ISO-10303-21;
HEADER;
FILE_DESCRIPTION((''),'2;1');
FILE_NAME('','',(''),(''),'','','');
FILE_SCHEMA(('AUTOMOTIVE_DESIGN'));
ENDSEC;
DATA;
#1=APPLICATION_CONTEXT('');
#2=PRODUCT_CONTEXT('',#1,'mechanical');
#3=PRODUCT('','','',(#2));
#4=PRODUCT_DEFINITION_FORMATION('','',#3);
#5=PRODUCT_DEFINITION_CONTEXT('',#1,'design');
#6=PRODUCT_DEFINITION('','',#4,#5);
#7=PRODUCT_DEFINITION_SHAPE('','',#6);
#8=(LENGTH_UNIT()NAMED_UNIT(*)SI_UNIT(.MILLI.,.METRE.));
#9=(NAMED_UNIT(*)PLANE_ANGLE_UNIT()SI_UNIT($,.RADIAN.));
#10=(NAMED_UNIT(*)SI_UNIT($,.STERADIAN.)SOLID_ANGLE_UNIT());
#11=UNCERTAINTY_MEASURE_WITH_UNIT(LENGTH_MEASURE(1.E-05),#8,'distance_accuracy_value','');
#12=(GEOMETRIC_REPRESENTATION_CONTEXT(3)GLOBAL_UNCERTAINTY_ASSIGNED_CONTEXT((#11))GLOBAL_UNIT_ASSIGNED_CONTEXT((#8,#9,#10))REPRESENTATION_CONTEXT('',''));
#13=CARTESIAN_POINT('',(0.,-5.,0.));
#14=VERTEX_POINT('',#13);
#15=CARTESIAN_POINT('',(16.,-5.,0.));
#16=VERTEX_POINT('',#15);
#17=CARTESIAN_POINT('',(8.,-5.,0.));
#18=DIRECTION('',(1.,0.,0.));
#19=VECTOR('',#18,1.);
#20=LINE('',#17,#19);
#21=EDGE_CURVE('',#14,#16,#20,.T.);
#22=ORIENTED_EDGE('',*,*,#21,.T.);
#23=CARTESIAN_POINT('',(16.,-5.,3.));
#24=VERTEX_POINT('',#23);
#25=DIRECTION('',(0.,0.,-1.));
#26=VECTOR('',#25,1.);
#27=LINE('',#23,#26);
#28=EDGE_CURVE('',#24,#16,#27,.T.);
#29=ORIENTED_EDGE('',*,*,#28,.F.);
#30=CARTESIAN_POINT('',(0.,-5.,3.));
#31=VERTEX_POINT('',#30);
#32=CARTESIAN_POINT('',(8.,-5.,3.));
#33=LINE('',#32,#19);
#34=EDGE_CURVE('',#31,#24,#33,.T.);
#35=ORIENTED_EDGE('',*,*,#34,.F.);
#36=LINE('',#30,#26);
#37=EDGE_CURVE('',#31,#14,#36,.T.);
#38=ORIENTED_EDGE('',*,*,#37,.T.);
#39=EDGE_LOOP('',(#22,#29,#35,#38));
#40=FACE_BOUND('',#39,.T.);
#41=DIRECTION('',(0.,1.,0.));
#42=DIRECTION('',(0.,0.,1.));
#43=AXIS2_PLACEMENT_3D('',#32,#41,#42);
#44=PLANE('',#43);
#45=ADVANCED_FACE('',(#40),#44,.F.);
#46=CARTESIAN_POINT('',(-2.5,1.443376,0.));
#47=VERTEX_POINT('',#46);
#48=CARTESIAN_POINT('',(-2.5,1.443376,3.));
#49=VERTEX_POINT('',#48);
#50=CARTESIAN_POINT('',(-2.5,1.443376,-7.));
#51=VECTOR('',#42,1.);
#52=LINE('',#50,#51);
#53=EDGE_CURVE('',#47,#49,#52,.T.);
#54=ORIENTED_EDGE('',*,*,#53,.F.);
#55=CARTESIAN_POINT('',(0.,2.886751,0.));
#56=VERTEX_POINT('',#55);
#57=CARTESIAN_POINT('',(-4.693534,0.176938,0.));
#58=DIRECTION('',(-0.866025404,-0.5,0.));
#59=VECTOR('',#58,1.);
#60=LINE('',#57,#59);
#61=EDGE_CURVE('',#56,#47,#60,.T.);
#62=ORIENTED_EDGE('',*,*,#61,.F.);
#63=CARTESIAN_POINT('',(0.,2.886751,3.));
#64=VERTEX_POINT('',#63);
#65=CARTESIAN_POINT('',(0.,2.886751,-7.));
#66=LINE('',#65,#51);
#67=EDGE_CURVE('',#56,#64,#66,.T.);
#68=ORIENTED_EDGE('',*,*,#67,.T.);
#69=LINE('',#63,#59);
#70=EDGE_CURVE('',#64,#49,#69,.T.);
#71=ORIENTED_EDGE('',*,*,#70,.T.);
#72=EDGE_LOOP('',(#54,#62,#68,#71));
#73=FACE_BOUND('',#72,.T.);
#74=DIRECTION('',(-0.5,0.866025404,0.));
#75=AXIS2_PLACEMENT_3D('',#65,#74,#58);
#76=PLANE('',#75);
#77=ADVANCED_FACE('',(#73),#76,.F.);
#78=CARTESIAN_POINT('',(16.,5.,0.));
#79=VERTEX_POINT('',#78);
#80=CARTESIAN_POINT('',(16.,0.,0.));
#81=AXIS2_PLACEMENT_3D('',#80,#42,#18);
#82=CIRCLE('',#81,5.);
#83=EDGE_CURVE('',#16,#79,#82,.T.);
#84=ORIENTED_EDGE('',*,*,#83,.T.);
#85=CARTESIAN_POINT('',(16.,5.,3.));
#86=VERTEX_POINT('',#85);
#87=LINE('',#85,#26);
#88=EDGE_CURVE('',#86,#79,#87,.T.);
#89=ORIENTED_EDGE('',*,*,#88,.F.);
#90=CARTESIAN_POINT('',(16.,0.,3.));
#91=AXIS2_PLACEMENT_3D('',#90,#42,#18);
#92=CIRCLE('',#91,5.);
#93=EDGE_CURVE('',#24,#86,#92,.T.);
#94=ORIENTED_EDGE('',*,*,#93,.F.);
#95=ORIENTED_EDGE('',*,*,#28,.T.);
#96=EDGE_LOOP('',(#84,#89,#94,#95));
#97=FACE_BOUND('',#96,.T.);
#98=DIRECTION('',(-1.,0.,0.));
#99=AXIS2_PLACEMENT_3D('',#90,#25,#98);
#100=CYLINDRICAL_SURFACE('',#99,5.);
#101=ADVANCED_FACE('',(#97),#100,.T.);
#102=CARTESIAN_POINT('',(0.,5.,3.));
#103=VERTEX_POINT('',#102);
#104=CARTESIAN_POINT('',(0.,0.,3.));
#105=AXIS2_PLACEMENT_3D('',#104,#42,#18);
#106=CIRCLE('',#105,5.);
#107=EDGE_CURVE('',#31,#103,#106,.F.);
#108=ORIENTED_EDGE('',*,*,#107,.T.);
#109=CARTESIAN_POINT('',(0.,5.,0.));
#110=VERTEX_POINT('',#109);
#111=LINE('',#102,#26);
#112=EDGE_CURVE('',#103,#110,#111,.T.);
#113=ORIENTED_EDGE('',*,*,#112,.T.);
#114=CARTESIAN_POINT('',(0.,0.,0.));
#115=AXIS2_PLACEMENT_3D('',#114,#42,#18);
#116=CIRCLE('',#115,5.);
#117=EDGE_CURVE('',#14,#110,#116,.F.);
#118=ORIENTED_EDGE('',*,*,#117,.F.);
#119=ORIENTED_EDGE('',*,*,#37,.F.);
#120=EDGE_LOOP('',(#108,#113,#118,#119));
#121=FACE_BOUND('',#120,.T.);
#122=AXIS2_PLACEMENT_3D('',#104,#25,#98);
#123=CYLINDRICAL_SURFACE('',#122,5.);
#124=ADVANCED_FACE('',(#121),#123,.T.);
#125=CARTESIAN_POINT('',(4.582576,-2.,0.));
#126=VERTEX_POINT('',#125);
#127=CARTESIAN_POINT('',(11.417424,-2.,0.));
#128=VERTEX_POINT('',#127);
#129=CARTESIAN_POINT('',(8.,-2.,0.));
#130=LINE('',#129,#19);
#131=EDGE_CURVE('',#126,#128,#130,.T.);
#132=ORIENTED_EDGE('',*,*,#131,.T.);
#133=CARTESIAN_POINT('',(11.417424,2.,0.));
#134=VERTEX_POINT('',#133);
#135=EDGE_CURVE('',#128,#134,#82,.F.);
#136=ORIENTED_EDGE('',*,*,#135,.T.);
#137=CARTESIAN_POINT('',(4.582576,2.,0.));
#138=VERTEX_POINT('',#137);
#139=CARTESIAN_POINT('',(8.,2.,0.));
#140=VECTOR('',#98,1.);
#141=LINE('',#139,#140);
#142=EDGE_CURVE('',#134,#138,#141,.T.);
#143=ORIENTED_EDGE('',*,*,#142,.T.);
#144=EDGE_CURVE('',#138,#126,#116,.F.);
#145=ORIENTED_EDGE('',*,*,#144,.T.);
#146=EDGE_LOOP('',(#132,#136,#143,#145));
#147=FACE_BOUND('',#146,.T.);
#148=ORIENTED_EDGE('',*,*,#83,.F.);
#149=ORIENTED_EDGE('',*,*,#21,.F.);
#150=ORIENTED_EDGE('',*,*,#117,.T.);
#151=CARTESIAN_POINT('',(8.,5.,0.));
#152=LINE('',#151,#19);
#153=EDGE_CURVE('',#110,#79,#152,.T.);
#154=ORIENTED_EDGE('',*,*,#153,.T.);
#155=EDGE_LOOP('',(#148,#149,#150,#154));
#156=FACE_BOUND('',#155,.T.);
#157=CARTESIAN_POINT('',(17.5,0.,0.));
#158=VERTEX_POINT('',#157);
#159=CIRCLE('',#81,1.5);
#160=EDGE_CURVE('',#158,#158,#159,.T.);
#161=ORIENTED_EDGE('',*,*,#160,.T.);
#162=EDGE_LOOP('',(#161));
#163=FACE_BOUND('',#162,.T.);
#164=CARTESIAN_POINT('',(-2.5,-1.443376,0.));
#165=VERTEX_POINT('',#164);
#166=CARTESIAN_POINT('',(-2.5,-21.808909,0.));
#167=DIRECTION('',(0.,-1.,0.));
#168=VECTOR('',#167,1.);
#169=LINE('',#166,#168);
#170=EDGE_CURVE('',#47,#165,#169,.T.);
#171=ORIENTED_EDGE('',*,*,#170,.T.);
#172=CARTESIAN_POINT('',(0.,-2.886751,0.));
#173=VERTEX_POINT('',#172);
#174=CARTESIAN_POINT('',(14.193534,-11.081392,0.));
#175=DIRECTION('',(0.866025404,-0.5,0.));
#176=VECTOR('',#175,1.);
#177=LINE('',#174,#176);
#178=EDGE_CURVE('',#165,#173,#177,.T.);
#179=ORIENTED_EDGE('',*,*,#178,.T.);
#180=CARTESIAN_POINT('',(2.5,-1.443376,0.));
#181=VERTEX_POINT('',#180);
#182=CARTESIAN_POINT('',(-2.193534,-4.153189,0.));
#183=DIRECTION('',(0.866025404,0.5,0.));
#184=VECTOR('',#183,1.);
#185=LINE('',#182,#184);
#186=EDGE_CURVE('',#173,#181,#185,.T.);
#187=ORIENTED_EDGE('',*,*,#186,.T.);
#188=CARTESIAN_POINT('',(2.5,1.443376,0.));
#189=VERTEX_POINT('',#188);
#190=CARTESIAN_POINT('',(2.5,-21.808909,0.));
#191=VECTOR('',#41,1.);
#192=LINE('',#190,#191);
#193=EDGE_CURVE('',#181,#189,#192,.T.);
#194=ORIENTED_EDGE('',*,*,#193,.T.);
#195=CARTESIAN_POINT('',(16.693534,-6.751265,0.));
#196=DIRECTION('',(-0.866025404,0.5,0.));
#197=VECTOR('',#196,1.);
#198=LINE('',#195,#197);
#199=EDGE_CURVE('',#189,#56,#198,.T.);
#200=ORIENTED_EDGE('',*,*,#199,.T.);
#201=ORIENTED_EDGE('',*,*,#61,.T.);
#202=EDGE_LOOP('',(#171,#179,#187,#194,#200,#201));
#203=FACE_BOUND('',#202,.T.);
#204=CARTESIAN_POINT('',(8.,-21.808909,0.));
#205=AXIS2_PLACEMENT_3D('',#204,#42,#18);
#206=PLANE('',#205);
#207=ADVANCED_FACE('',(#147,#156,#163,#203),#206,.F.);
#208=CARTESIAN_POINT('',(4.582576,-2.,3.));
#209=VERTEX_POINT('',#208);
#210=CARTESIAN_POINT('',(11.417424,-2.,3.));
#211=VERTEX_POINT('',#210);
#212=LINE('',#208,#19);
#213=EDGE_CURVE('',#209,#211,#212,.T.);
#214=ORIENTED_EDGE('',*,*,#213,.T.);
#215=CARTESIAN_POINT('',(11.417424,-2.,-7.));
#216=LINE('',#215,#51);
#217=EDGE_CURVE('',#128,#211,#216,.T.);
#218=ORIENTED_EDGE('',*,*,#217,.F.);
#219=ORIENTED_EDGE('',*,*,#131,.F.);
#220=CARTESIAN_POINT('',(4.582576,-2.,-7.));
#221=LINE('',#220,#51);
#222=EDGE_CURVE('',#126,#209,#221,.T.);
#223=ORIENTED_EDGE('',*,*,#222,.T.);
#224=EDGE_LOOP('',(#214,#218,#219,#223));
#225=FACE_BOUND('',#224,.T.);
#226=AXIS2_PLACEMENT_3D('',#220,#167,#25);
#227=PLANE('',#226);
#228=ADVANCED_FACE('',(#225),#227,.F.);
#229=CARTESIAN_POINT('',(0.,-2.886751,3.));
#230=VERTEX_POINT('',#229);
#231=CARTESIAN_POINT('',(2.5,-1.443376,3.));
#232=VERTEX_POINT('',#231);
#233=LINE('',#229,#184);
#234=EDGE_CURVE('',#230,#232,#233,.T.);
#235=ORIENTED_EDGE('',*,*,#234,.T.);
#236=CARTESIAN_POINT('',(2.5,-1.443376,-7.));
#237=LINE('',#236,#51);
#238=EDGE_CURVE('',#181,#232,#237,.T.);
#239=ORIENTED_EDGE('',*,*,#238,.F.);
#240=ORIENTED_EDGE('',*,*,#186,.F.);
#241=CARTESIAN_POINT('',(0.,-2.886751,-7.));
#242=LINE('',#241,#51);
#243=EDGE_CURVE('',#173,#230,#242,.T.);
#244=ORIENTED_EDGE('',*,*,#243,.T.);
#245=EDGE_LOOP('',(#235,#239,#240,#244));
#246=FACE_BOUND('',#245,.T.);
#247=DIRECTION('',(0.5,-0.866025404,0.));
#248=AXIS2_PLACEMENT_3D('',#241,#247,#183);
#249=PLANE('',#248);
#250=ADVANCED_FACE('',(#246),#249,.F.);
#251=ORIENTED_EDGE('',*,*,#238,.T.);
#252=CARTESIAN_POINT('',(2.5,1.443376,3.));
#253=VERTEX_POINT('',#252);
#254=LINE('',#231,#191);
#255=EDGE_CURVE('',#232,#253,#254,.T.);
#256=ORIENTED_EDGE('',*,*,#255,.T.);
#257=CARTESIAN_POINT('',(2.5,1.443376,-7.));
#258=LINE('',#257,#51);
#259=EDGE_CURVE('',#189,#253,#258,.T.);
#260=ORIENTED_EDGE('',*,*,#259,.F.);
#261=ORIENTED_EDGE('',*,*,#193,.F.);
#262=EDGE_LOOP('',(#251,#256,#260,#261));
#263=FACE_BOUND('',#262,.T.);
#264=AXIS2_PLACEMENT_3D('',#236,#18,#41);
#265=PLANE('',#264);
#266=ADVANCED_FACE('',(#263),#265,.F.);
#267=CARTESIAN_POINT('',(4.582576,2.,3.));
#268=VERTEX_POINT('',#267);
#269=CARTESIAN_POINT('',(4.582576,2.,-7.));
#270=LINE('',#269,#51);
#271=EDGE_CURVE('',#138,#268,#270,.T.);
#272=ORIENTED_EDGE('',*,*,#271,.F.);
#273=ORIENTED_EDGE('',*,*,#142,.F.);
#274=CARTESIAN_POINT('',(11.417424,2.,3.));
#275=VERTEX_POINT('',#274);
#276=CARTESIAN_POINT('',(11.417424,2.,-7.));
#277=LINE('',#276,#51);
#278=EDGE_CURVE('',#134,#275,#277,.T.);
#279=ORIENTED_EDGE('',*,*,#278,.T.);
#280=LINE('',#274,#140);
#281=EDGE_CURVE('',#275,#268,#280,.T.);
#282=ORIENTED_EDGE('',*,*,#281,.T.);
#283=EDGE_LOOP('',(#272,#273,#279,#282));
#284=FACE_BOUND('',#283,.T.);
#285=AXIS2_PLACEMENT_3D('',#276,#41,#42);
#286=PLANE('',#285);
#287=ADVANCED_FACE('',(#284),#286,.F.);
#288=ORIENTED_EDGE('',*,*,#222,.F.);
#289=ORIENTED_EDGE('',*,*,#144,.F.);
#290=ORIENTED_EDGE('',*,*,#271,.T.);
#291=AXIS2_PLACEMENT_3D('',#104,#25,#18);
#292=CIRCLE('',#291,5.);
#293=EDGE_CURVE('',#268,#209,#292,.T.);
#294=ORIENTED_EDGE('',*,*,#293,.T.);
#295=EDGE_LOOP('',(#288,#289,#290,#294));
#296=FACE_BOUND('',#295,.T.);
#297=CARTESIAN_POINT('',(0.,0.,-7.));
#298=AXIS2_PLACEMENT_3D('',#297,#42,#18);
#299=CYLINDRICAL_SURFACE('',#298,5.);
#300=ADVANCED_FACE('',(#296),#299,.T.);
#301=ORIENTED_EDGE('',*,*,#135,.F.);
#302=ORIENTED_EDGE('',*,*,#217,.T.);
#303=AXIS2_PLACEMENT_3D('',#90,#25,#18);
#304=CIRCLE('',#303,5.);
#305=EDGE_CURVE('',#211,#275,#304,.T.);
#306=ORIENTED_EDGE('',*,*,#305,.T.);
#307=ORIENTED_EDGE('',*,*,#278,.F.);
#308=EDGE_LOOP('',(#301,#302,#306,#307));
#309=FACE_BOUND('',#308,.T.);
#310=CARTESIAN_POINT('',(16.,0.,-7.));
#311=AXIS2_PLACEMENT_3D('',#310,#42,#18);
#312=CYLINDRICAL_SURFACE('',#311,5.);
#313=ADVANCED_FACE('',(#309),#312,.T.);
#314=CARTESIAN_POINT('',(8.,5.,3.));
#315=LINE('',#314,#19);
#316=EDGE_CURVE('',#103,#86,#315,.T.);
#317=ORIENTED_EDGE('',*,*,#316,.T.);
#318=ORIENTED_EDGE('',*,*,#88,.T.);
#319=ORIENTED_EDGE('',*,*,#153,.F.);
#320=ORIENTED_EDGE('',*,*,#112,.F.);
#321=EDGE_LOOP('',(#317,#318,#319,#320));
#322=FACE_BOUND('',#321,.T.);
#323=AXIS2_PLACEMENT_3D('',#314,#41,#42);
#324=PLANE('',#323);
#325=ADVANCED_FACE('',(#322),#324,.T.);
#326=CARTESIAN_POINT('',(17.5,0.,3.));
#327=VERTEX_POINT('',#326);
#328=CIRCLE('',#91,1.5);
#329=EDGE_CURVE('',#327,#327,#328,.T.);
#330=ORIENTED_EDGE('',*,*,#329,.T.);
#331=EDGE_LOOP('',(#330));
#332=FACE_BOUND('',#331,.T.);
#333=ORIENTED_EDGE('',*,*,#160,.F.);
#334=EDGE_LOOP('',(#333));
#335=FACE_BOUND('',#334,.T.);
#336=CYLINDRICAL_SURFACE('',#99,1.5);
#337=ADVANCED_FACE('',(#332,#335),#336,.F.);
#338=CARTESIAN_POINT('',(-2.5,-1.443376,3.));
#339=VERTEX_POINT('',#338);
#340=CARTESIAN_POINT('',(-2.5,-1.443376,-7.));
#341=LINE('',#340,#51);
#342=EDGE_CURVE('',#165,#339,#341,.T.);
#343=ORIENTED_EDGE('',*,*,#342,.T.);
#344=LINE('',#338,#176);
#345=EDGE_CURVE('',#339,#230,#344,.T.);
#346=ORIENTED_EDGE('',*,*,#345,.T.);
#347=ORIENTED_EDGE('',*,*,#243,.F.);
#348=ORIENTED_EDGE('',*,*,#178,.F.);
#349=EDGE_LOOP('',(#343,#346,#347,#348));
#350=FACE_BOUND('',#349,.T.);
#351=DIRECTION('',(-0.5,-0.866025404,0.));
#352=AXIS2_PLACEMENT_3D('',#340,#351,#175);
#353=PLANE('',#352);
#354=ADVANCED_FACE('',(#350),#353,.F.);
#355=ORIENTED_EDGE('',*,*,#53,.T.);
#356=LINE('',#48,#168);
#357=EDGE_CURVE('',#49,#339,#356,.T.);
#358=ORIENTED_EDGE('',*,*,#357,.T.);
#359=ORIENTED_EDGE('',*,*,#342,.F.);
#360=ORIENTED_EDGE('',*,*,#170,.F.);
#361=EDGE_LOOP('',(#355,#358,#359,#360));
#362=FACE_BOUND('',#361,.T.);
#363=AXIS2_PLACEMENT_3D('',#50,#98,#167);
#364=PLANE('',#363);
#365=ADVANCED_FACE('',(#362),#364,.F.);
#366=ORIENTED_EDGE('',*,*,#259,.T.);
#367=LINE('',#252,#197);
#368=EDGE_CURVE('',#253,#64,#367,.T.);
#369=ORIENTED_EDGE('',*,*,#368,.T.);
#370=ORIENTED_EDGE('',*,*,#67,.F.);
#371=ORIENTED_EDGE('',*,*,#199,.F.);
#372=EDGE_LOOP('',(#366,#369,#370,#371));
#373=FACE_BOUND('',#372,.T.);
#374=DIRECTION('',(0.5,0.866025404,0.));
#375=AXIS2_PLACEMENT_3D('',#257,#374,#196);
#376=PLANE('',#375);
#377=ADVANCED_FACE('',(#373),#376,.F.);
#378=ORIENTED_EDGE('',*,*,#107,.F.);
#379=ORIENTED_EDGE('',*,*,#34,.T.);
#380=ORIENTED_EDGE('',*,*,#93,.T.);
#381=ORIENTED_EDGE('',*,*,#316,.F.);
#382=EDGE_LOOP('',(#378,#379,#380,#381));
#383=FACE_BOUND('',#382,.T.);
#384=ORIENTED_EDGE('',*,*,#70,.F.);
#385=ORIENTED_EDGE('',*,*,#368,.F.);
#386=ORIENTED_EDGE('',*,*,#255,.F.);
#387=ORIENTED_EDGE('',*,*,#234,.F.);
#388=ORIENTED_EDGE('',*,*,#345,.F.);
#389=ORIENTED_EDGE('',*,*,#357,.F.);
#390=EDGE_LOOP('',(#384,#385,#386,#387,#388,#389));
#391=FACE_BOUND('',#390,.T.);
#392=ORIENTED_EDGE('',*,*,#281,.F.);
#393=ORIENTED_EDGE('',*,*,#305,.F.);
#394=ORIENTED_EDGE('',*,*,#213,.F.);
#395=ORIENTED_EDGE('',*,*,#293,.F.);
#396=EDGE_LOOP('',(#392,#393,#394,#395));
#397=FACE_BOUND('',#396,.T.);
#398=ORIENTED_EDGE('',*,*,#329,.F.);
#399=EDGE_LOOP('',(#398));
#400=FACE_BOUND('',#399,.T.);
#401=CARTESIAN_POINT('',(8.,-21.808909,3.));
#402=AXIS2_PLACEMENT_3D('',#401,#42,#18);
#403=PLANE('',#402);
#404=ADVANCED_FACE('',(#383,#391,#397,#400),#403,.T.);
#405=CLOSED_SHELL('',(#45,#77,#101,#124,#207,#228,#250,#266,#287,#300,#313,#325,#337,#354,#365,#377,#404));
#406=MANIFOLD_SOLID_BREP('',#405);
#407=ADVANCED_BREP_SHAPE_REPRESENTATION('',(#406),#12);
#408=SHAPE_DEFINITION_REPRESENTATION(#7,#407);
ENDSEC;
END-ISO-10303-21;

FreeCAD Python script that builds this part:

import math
import FreeCAD as App
import Part
import Sketcher
from FreeCAD import Vector
Q = App.Units.Quantity

doc = App.newDocument("Part")
body = doc.addObject("PartDesign::Body", "Body")

sketch1 = body.newObject("Sketcher::SketchObject", "Sketch")
sketch1.AttachmentSupport = (doc.getObject("XY_Plane"), [""])
sketch1.MapMode = "FlatFace"
sketch1.addGeometry([
    Part.LineSegment(Vector(0, -5, 0), Vector(16, -5, 0)),
    Part.ArcOfCircle(Part.Circle(Vector(16, 0, 0), Vector(0, 0, 1), 5), math.radians(-90), math.radians(90)),
    Part.LineSegment(Vector(16, 5, 0), Vector(0, 5, 0)),
    Part.ArcOfCircle(Part.Circle(Vector(0, 0, 0), Vector(0, 0, 1), 5), math.radians(90), math.radians(270)),
    Part.Circle(Vector(0, 0, 0), Vector(0, 0, 1), 1.5),
    Part.Circle(Vector(16, 0, 0), Vector(0, 0, 1), 1.5),
], False)
sketch1.addConstraint([
    Sketcher.Constraint("Tangent", 0, 2, 1, 1),
    Sketcher.Constraint("Tangent", 1, 2, 2, 1),
    Sketcher.Constraint("Tangent", 2, 2, 3, 1),
    Sketcher.Constraint("Tangent", 3, 2, 0, 1),
    Sketcher.Constraint("Horizontal", 0),
    Sketcher.Constraint("Horizontal", 2),
    Sketcher.Constraint("Coincident", 3, 3, -1, 1),
    Sketcher.Constraint("Coincident", 4, 3, -1, 1),
    Sketcher.Constraint("Coincident", 5, 3, 1, 3),
    Sketcher.Constraint("Equal", 4, 5),
    Sketcher.Constraint("Diameter", 4, 3.0),
    Sketcher.Constraint("Radius", 1, 5.0),
    Sketcher.Constraint("DistanceX", 0, 1, 0, 2, 16.0),
])
pad1 = body.newObject("PartDesign::Pad", "Pad")
pad1.Profile = sketch1
pad1.Length = 3

sketch2 = body.newObject("Sketcher::SketchObject", "Sketch001")
sketch2.AttachmentSupport = (doc.getObject("XY_Plane"), [""])
sketch2.MapMode = "FlatFace"
sketch2.AttachmentOffset = App.Placement(Vector(0, 0, -7), App.Rotation())
sketch2.addGeometry([
    Part.Circle(Vector(16, 0, 0), Vector(0, 0, 1), 1.5),
    Part.LineSegment(Vector(0, 2.9, 0), Vector(-2.5, 1.4, 0)),
    Part.LineSegment(Vector(-2.5, 1.4, 0), Vector(-2.5, -1.4, 0)),
    Part.LineSegment(Vector(-2.5, -1.4, 0), Vector(0, -2.9, 0)),
    Part.LineSegment(Vector(0, -2.9, 0), Vector(2.5, -1.4, 0)),
    Part.LineSegment(Vector(2.5, -1.4, 0), Vector(2.5, 1.4, 0)),
    Part.LineSegment(Vector(2.5, 1.4, 0), Vector(0, 2.9, 0)),
    Part.LineSegment(Vector(4.6, -2, 0), Vector(11.4, -2, 0)),
    Part.ArcOfCircle(Part.Circle(Vector(16, 0, 0), Vector(0, 0, 1), 5), math.radians(156), math.radians(204)),
    Part.LineSegment(Vector(11.4, 2, 0), Vector(4.6, 2, 0)),
    Part.ArcOfCircle(Part.Circle(Vector(0, 0, 0), Vector(0, 0, 1), 5), math.radians(-24), math.radians(24)),
], False)
sketch2.addConstraint([
    Sketcher.Constraint("Coincident", 1, 2, 2, 1),
    Sketcher.Constraint("Coincident", 2, 2, 3, 1),
    Sketcher.Constraint("Coincident", 3, 2, 4, 1),
    Sketcher.Constraint("Coincident", 4, 2, 5, 1),
    Sketcher.Constraint("Coincident", 5, 2, 6, 1),
    Sketcher.Constraint("Coincident", 6, 2, 1, 1),
    Sketcher.Constraint("Coincident", 7, 2, 8, 2),
    Sketcher.Constraint("Coincident", 8, 1, 9, 1),
    Sketcher.Constraint("Coincident", 9, 2, 10, 2),
    Sketcher.Constraint("Coincident", 10, 1, 7, 1),
    Sketcher.Constraint("Vertical", 2),
    Sketcher.Constraint("Vertical", 5),
    Sketcher.Constraint("Horizontal", 7),
    Sketcher.Constraint("Horizontal", 9),
    Sketcher.Constraint("Coincident", 10, 3, -1, 1),
    Sketcher.Constraint("Coincident", 8, 3, 0, 3),
    Sketcher.Constraint("Equal", 8, 10),
    Sketcher.Constraint("Symmetric", 1, 2, 4, 2, -1, 1),
    Sketcher.Constraint("Symmetric", 3, 2, 6, 2, -1, 1),
    Sketcher.Constraint("Symmetric", 7, 2, 8, 1, -1),
    Sketcher.Constraint("PointOnObject", 3, 2, -2),
    Sketcher.Constraint("Parallel", 3, 6),
    Sketcher.Constraint("Horizontal", 2, 2, 4, 2),
    Sketcher.Constraint("Diameter", 0, 3.0),
    Sketcher.Constraint("Radius", 8, 5.0),
    Sketcher.Constraint("Angle", 1, Q("-150 deg")),
    Sketcher.Constraint("DistanceX", -1, 1, 0, 3, 16.0),
    Sketcher.Constraint("DistanceY", 7, 2, -1, 1, 2.0),
    Sketcher.Constraint("DistanceX", 2, 2, 4, 2, 5.0),
    Sketcher.Constraint("DistanceY", 2, 2, 2, 1, 2.886751),
])
pocket1 = body.newObject("PartDesign::Pocket", "Pocket")
pocket1.Profile = sketch2
pocket1.Length = 10
pocket1.Reversed = True

doc.recompute()
